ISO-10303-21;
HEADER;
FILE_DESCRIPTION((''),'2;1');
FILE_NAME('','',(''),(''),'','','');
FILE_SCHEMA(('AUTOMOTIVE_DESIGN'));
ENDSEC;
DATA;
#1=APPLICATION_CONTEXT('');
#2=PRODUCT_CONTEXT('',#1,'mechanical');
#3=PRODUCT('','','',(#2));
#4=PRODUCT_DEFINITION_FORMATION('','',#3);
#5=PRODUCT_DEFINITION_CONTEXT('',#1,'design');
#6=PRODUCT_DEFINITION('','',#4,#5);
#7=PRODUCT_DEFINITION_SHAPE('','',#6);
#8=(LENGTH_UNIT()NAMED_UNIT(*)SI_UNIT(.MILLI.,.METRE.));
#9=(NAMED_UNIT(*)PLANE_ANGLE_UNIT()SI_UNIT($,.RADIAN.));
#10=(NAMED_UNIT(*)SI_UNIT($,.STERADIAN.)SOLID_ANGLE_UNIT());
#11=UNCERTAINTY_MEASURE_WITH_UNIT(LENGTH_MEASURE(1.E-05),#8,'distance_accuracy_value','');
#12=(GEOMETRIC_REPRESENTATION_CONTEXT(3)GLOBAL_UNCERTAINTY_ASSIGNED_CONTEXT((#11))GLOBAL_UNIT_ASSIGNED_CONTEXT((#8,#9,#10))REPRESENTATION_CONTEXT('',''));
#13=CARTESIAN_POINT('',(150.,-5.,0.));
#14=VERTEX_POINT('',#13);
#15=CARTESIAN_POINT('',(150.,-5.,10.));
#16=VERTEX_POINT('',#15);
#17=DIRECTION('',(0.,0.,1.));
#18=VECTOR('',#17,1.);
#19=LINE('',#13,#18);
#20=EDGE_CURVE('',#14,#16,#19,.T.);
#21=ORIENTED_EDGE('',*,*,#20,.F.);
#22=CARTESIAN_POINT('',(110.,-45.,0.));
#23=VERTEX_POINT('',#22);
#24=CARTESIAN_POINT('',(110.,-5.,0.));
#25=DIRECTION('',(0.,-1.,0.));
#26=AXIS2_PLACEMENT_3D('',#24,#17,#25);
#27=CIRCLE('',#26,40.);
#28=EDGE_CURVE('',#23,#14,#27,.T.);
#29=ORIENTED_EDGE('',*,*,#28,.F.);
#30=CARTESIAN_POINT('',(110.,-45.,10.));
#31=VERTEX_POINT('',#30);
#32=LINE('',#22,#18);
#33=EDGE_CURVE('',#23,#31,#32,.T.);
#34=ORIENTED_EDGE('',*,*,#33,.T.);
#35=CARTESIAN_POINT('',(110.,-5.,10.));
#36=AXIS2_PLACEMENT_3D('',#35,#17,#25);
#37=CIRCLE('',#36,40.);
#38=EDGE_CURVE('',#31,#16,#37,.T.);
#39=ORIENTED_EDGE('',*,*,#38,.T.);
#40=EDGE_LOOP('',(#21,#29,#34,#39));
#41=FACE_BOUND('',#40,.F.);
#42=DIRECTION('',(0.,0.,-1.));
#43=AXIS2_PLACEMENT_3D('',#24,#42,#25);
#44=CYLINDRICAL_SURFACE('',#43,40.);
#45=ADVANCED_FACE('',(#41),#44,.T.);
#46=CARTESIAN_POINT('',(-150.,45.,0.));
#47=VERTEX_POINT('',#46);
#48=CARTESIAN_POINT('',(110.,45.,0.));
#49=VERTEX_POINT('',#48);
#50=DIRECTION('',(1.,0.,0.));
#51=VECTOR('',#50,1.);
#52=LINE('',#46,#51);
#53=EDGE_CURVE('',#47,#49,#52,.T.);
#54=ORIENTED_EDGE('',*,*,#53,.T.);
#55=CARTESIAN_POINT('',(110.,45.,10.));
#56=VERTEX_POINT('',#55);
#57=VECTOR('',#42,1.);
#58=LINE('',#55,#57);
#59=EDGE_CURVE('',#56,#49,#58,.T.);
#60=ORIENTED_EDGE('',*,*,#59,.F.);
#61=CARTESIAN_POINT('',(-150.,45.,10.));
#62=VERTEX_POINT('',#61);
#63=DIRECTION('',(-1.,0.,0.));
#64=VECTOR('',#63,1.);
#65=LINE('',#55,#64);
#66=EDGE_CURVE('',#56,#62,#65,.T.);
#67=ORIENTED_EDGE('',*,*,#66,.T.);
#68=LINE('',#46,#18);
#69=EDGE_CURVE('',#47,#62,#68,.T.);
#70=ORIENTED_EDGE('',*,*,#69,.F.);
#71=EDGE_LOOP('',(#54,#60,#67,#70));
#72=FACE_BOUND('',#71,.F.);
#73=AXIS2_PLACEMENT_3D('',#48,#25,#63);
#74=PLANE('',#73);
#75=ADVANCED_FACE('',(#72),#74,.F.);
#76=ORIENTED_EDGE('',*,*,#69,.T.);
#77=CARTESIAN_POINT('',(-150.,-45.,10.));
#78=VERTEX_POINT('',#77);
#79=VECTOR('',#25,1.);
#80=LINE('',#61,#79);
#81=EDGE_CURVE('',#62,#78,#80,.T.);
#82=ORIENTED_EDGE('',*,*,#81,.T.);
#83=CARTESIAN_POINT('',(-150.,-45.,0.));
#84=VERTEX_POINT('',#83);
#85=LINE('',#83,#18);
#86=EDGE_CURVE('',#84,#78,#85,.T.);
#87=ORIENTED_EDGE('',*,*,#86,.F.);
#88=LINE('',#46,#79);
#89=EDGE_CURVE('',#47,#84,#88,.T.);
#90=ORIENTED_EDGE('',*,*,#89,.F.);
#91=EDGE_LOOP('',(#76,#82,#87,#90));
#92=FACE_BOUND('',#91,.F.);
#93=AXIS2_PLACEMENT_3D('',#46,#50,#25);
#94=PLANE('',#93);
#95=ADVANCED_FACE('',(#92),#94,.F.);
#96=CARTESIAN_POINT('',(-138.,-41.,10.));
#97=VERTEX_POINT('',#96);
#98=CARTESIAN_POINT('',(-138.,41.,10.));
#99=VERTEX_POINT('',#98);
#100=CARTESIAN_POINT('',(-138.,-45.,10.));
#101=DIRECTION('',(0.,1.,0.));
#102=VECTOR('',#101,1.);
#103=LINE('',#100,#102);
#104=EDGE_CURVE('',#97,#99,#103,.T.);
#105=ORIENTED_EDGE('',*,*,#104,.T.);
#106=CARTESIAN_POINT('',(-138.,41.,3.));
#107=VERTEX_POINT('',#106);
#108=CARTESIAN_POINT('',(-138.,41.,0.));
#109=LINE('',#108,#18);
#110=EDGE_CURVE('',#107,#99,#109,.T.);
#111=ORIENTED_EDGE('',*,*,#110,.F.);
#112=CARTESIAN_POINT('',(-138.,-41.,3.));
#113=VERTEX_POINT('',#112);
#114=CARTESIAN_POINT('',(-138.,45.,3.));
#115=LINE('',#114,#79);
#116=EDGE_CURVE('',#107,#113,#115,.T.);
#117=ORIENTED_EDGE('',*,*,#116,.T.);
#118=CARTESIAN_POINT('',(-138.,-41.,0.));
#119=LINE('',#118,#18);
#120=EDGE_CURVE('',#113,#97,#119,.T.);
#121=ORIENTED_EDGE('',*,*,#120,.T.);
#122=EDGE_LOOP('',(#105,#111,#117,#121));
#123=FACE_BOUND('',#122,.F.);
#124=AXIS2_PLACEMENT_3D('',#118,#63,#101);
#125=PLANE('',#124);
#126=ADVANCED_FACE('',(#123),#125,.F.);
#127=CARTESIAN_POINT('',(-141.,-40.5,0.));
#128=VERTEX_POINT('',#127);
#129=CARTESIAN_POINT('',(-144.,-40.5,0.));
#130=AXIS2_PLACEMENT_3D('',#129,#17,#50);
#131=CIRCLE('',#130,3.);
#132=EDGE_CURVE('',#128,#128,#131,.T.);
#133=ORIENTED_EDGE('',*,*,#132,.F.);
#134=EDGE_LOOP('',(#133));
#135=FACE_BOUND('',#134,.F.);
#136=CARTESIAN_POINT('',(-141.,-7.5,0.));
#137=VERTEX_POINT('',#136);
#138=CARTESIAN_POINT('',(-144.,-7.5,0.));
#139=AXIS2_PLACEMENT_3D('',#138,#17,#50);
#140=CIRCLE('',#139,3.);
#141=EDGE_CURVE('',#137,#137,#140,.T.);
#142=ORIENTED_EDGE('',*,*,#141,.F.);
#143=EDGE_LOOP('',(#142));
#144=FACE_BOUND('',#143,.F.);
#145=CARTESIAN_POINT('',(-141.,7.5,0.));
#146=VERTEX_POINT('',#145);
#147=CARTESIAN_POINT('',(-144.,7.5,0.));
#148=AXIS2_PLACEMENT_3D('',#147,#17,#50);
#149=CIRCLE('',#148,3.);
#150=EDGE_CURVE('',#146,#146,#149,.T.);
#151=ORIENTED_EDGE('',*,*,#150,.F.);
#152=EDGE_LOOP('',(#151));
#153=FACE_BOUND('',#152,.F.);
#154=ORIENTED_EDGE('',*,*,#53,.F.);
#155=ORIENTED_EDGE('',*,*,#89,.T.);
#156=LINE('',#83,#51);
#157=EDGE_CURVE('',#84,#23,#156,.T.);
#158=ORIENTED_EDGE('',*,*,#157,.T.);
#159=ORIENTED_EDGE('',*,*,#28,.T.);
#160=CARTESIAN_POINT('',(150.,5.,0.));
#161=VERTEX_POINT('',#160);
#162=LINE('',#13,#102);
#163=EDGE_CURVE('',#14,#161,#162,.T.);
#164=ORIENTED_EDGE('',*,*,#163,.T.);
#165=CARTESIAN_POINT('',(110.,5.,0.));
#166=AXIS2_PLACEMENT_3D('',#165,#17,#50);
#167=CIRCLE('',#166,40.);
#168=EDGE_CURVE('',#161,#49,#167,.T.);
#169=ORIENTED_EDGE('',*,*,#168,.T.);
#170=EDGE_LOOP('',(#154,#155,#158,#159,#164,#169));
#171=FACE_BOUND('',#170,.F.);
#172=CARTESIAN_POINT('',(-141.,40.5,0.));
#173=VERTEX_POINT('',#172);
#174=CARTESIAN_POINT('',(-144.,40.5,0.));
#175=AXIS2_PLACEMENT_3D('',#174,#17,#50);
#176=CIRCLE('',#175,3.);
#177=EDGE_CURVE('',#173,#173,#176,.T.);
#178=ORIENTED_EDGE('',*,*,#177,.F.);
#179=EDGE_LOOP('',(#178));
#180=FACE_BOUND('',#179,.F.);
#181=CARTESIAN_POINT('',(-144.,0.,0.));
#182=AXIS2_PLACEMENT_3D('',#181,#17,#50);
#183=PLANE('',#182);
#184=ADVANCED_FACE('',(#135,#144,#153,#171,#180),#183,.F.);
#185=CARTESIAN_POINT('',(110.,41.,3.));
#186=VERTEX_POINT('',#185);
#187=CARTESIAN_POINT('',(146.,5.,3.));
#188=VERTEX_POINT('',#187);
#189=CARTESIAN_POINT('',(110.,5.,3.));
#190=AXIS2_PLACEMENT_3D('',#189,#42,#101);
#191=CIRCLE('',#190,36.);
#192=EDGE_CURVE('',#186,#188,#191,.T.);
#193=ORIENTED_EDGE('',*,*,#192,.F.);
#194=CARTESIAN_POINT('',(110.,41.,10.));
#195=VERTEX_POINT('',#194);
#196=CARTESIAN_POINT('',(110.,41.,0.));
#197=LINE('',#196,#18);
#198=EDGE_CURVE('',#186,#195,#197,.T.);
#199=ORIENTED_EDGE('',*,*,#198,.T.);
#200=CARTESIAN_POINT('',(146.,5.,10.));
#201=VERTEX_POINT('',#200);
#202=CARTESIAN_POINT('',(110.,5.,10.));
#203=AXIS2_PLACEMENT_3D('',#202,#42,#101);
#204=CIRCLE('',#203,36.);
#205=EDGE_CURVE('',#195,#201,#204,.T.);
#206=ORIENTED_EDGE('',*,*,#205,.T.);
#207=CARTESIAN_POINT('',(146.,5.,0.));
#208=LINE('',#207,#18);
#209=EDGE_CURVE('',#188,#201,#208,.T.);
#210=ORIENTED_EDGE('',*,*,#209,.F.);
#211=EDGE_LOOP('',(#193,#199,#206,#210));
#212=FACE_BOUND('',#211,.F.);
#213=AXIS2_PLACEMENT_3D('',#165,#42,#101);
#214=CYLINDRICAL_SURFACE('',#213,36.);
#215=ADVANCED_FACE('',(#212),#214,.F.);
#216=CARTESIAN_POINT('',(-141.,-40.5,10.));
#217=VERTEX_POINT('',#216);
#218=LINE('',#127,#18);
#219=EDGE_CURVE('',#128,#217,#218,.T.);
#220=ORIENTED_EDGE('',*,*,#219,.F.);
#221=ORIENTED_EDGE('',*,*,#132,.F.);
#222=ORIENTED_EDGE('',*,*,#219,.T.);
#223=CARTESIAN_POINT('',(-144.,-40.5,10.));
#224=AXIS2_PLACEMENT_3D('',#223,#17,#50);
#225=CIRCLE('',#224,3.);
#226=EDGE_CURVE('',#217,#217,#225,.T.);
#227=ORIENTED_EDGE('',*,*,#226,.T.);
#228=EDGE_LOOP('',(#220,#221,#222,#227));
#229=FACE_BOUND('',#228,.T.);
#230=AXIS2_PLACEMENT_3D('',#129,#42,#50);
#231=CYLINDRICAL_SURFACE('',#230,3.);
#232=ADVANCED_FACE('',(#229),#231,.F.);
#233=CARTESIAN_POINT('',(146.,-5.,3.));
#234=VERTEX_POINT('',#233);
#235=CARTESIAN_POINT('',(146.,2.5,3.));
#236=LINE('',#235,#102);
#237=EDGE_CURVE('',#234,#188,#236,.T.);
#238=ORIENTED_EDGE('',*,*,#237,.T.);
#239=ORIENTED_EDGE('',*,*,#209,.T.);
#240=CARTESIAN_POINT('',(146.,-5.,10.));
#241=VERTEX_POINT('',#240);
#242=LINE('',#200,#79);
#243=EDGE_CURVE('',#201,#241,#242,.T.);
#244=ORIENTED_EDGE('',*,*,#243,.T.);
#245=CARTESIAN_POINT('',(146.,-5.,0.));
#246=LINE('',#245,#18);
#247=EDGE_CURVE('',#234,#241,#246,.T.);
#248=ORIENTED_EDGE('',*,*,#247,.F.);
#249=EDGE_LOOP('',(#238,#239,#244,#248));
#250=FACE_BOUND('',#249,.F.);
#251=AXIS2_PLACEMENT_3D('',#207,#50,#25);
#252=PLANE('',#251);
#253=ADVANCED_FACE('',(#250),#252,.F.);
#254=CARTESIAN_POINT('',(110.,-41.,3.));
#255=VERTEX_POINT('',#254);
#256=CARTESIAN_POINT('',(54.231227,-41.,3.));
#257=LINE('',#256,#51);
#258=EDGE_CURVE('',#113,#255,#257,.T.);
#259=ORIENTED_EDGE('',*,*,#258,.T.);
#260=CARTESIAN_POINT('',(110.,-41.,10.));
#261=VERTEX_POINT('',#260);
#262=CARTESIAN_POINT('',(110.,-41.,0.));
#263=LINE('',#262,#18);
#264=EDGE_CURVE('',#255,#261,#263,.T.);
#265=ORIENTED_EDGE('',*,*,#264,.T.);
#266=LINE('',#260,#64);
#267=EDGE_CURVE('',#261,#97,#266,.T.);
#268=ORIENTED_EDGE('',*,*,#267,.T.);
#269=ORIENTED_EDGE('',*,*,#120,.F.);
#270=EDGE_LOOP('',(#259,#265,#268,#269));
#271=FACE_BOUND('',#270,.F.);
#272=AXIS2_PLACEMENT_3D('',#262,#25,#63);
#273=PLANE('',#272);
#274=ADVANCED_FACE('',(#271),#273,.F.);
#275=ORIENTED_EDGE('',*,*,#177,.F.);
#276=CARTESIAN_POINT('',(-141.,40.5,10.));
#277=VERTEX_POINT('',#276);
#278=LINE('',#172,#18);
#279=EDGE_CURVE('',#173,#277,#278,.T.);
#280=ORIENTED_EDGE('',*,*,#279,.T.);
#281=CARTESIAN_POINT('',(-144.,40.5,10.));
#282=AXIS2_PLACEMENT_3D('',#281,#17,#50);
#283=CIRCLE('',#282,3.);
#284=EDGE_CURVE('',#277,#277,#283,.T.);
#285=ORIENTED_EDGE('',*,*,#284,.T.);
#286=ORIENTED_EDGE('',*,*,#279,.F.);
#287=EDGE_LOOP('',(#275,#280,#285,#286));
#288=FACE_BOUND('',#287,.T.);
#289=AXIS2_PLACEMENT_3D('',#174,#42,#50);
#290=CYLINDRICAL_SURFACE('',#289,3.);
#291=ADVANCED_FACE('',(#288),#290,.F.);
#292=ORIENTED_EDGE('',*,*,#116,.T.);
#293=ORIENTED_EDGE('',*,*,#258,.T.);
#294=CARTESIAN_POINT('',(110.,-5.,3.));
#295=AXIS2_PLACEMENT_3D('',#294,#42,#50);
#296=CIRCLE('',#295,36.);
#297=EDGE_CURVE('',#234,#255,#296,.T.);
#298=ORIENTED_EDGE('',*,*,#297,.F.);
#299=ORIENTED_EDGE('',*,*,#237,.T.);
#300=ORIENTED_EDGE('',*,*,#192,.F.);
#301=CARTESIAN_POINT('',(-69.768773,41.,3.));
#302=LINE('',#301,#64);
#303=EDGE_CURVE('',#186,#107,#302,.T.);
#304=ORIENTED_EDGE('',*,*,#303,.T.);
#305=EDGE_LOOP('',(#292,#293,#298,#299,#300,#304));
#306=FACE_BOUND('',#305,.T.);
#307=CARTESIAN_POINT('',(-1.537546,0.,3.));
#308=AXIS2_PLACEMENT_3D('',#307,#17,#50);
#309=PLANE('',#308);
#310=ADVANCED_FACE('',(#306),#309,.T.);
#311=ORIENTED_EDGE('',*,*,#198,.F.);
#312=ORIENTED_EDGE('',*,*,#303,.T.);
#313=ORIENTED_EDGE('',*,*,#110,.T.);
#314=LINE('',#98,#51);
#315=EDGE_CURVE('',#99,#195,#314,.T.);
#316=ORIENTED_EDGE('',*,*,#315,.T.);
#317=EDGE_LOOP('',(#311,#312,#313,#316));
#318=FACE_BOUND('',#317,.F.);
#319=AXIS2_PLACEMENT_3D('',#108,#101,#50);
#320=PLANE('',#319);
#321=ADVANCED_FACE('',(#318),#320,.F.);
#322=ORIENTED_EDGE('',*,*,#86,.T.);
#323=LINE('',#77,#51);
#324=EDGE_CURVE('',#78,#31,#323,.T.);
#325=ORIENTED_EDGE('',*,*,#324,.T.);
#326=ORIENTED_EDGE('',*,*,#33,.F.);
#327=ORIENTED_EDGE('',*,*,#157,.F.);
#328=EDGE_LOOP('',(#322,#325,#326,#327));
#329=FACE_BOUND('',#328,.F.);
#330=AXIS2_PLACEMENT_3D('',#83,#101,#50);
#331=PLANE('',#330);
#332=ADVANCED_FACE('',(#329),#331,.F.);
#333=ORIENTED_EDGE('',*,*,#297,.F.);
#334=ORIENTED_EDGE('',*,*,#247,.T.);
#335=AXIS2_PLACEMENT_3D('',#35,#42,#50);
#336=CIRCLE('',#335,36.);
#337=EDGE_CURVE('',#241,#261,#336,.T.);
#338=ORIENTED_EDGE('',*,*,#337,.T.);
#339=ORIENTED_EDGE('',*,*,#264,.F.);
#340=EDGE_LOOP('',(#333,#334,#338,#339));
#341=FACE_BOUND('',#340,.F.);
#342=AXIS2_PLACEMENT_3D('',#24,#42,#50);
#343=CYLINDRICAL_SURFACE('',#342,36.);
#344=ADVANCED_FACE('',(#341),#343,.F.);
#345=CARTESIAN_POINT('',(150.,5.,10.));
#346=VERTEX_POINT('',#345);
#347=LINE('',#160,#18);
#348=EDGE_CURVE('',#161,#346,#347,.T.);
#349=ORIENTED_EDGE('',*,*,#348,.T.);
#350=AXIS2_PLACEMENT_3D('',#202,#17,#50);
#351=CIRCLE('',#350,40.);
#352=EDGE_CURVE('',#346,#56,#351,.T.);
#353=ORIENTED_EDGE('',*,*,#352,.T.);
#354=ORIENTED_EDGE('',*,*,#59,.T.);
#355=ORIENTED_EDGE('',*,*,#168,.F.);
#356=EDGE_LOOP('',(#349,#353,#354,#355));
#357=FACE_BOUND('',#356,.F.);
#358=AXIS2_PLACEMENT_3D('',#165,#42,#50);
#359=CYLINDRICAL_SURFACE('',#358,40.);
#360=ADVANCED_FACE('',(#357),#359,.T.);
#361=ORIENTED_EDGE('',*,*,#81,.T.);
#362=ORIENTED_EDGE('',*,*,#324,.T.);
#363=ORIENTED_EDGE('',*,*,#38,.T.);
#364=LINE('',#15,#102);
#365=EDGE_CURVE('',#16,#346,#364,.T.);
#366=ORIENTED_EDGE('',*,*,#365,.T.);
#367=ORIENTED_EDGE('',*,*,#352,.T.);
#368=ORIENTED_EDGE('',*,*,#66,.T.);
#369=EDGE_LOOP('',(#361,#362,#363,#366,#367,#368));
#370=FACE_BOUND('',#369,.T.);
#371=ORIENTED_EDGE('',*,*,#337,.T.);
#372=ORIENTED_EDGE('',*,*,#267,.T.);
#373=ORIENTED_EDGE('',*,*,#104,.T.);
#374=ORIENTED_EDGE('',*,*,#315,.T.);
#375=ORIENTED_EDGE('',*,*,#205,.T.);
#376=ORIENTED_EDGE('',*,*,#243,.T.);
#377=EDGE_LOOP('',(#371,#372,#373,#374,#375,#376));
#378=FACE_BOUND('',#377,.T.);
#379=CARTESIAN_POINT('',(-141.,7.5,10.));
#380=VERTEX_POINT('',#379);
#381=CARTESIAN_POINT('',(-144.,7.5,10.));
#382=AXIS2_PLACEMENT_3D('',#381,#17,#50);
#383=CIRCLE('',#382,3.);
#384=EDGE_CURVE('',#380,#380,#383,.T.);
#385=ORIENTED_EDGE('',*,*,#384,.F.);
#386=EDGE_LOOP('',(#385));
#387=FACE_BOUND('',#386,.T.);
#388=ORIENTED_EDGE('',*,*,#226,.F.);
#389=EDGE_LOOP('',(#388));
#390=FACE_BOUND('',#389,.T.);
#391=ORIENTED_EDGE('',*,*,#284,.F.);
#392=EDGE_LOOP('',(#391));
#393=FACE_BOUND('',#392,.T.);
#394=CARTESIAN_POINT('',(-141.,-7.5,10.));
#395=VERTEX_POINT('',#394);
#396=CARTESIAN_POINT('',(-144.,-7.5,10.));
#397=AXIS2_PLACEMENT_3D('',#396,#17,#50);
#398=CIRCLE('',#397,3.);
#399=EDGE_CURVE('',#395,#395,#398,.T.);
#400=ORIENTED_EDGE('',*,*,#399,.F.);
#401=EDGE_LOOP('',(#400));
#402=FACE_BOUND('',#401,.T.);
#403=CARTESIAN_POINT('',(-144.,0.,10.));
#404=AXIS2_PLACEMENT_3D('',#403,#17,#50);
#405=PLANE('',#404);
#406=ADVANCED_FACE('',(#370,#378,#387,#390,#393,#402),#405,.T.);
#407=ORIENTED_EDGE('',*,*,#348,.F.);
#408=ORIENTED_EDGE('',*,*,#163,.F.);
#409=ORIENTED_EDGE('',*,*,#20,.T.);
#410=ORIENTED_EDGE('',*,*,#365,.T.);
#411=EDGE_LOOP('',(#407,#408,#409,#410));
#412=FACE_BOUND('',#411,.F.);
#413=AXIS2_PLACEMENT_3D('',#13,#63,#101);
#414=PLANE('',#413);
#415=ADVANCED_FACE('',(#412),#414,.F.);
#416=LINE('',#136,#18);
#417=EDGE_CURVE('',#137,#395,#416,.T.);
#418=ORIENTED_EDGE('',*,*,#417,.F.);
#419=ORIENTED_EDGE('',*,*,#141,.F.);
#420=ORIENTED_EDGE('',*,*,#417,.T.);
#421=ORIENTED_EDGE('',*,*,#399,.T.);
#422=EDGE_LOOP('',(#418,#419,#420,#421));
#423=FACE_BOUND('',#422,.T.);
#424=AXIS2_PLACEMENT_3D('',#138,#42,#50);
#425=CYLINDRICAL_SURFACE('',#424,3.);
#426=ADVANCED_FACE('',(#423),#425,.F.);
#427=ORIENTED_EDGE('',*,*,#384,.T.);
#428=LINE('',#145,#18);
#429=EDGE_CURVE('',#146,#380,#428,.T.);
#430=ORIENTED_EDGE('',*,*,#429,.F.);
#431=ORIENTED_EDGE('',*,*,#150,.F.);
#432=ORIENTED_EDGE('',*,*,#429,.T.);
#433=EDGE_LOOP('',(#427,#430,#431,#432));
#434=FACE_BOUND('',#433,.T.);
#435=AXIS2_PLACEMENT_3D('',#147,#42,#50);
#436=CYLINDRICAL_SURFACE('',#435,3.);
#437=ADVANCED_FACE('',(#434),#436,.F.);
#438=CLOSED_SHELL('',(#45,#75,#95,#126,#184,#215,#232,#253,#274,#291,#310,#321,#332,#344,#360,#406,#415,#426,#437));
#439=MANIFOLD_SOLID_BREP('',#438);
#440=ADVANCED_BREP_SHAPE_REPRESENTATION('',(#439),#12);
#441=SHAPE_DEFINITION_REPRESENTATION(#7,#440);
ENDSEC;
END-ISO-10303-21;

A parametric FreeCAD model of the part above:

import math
import FreeCAD as App
import Part
import Sketcher

V = App.Vector

doc = App.newDocument("Part")
body = doc.addObject("PartDesign::Body", "Body")

# Sketch on XY plane
sketch1 = body.newObject("Sketcher::SketchObject", "Sketch")
sketch1.AttachmentSupport = (doc.getObject("XY_Plane"), [""])
sketch1.MapMode = "FlatFace"
sketch1.addGeometry([
    Part.LineSegment(V(-138, -45, 0), V(110, -45, 0)),  # 0
    Part.ArcOfCircle(Part.Circle(V(110, -5, 0), V(0, 0, 1), 40), math.radians(-90), math.radians(0)),  # 1
    Part.LineSegment(V(150, -5, 0), V(150, 5, 0)),  # 2
    Part.ArcOfCircle(Part.Circle(V(110, 5, 0), V(0, 0, 1), 40), math.radians(0), math.radians(90)),  # 3
    Part.LineSegment(V(110, 45, 0), V(-138, 45, 0)),  # 4
    Part.LineSegment(V(-138, 45, 0), V(-138, -45, 0)),  # 5
], False)
sketch1.addConstraint([
    Sketcher.Constraint("Tangent", 0, 2, 1, 1),
    Sketcher.Constraint("Tangent", 1, 2, 2, 1),
    Sketcher.Constraint("Tangent", 2, 2, 3, 1),
    Sketcher.Constraint("Tangent", 3, 2, 4, 1),
    Sketcher.Constraint("Coincident", 4, 2, 5, 1),
    Sketcher.Constraint("Coincident", 5, 2, 0, 1),
    Sketcher.Constraint("Horizontal", 0),
    Sketcher.Constraint("Vertical", 2),
    Sketcher.Constraint("Horizontal", 4),
    Sketcher.Constraint("Vertical", 5),
    Sketcher.Constraint("Equal", 1, 3),
    Sketcher.Constraint("Radius", 1, 40.0),
    Sketcher.Constraint("DistanceX", 0, 1, 0, 2, 248.0),
    Sketcher.Constraint("DistanceY", 2, 1, 2, 2, 10.0),
    Sketcher.Constraint("DistanceX", -1, 1, 1, 3, 110.0),
    Sketcher.Constraint("DistanceY", 1, 3, -1, 1, 5.0),
])
pad1 = body.newObject("PartDesign::Pad", "Pad")
pad1.Profile = sketch1
pad1.Length = 3

# Sketch on XY plane
sketch2 = body.newObject("Sketcher::SketchObject", "Sketch001")
sketch2.AttachmentSupport = (doc.getObject("XY_Plane"), [""])
sketch2.MapMode = "FlatFace"
sketch2.addGeometry([
    Part.LineSegment(V(-150, -45, 0), V(110, -45, 0)),  # 0
    Part.ArcOfCircle(Part.Circle(V(110, -5, 0), V(0, 0, 1), 40), math.radians(-90), math.radians(0)),  # 1
    Part.LineSegment(V(150, -5, 0), V(150, 5, 0)),  # 2
    Part.ArcOfCircle(Part.Circle(V(110, 5, 0), V(0, 0, 1), 40), math.radians(0), math.radians(90)),  # 3
    Part.LineSegment(V(110, 45, 0), V(-150, 45, 0)),  # 4
    Part.LineSegment(V(-150, 45, 0), V(-150, -45, 0)),  # 5
    Part.LineSegment(V(-138, -41, 0), V(-138, 41, 0)),  # 6
    Part.LineSegment(V(-138, 41, 0), V(110, 41, 0)),  # 7
    Part.ArcOfCircle(Part.Circle(V(110, 5, 0), V(0, 0, 1), 36), math.radians(0), math.radians(90)),  # 8
    Part.LineSegment(V(146, 5, 0), V(146, -5, 0)),  # 9
    Part.ArcOfCircle(Part.Circle(V(110, -5, 0), V(0, 0, 1), 36), math.radians(-90), math.radians(0)),  # 10
    Part.LineSegment(V(110, -41, 0), V(-138, -41, 0)),  # 11
    Part.Circle(V(-144, -40.5, 0), V(0, 0, 1), 3),  # 12
    Part.Circle(V(-144, -7.5, 0), V(0, 0, 1), 3),  # 13
    Part.Circle(V(-144, 7.5, 0), V(0, 0, 1), 3),  # 14
    Part.Circle(V(-144, 40.5, 0), V(0, 0, 1), 3),  # 15
], False)
sketch2.addConstraint([
    Sketcher.Constraint("Tangent", 0, 2, 1, 1),
    Sketcher.Constraint("Tangent", 1, 2, 2, 1),
    Sketcher.Constraint("Tangent", 2, 2, 3, 1),
    Sketcher.Constraint("Tangent", 3, 2, 4, 1),
    Sketcher.Constraint("Coincident", 4, 2, 5, 1),
    Sketcher.Constraint("Coincident", 5, 2, 0, 1),
    Sketcher.Constraint("Coincident", 6, 2, 7, 1),
    Sketcher.Constraint("Tangent", 7, 2, 8, 2),
    Sketcher.Constraint("Tangent", 8, 1, 9, 1),
    Sketcher.Constraint("Tangent", 9, 2, 10, 2),
    Sketcher.Constraint("Tangent", 10, 1, 11, 1),
    Sketcher.Constraint("Coincident", 11, 2, 6, 1),
    Sketcher.Constraint("Horizontal", 0),
    Sketcher.Constraint("Vertical", 2),
    Sketcher.Constraint("Horizontal", 4),
    Sketcher.Constraint("Vertical", 5),
    Sketcher.Constraint("Vertical", 6),
    Sketcher.Constraint("Horizontal", 7),
    Sketcher.Constraint("Vertical", 9),
    Sketcher.Constraint("Horizontal", 11),
    Sketcher.Constraint("Coincident", 8, 3, 3, 3),
    Sketcher.Constraint("Coincident", 10, 3, 1, 3),
    Sketcher.Constraint("Equal", 1, 3),
    Sketcher.Constraint("Equal", 12, 13),
    Sketcher.Constraint("Equal", 13, 14),
    Sketcher.Constraint("Equal", 14, 15),
    Sketcher.Constraint("Symmetric", 13, 3, 14, 3, -1),
    Sketcher.Constraint("Symmetric", 12, 3, 15, 3, -1),
    Sketcher.Constraint("Vertical", 12, 3, 13, 3),
    Sketcher.Constraint("Diameter", 12, 6.0),
    Sketcher.Constraint("Radius", 1, 40.0),
    Sketcher.Constraint("Radius", 8, 36.0),
    Sketcher.Constraint("DistanceX", 0, 1, 0, 2, 260.0),
    Sketcher.Constraint("DistanceX", 7, 1, 7, 2, 248.0),
    Sketcher.Constraint("DistanceY", 2, 1, 2, 2, 10.0),
    Sketcher.Constraint("DistanceX", -1, 1, 1, 3, 110.0),
    Sketcher.Constraint("DistanceY", 1, 3, -1, 1, 5.0),
    Sketcher.Constraint("DistanceX", 12, 3, -1, 1, 144.0),
    Sketcher.Constraint("DistanceY", 12, 3, 13, 3, 33.0),
    Sketcher.Constraint("DistanceY", 13, 3, 14, 3, 15.0),
])
pad2 = body.newObject("PartDesign::Pad", "Pad001")
pad2.Profile = sketch2
pad2.Length = 10

doc.recompute()
